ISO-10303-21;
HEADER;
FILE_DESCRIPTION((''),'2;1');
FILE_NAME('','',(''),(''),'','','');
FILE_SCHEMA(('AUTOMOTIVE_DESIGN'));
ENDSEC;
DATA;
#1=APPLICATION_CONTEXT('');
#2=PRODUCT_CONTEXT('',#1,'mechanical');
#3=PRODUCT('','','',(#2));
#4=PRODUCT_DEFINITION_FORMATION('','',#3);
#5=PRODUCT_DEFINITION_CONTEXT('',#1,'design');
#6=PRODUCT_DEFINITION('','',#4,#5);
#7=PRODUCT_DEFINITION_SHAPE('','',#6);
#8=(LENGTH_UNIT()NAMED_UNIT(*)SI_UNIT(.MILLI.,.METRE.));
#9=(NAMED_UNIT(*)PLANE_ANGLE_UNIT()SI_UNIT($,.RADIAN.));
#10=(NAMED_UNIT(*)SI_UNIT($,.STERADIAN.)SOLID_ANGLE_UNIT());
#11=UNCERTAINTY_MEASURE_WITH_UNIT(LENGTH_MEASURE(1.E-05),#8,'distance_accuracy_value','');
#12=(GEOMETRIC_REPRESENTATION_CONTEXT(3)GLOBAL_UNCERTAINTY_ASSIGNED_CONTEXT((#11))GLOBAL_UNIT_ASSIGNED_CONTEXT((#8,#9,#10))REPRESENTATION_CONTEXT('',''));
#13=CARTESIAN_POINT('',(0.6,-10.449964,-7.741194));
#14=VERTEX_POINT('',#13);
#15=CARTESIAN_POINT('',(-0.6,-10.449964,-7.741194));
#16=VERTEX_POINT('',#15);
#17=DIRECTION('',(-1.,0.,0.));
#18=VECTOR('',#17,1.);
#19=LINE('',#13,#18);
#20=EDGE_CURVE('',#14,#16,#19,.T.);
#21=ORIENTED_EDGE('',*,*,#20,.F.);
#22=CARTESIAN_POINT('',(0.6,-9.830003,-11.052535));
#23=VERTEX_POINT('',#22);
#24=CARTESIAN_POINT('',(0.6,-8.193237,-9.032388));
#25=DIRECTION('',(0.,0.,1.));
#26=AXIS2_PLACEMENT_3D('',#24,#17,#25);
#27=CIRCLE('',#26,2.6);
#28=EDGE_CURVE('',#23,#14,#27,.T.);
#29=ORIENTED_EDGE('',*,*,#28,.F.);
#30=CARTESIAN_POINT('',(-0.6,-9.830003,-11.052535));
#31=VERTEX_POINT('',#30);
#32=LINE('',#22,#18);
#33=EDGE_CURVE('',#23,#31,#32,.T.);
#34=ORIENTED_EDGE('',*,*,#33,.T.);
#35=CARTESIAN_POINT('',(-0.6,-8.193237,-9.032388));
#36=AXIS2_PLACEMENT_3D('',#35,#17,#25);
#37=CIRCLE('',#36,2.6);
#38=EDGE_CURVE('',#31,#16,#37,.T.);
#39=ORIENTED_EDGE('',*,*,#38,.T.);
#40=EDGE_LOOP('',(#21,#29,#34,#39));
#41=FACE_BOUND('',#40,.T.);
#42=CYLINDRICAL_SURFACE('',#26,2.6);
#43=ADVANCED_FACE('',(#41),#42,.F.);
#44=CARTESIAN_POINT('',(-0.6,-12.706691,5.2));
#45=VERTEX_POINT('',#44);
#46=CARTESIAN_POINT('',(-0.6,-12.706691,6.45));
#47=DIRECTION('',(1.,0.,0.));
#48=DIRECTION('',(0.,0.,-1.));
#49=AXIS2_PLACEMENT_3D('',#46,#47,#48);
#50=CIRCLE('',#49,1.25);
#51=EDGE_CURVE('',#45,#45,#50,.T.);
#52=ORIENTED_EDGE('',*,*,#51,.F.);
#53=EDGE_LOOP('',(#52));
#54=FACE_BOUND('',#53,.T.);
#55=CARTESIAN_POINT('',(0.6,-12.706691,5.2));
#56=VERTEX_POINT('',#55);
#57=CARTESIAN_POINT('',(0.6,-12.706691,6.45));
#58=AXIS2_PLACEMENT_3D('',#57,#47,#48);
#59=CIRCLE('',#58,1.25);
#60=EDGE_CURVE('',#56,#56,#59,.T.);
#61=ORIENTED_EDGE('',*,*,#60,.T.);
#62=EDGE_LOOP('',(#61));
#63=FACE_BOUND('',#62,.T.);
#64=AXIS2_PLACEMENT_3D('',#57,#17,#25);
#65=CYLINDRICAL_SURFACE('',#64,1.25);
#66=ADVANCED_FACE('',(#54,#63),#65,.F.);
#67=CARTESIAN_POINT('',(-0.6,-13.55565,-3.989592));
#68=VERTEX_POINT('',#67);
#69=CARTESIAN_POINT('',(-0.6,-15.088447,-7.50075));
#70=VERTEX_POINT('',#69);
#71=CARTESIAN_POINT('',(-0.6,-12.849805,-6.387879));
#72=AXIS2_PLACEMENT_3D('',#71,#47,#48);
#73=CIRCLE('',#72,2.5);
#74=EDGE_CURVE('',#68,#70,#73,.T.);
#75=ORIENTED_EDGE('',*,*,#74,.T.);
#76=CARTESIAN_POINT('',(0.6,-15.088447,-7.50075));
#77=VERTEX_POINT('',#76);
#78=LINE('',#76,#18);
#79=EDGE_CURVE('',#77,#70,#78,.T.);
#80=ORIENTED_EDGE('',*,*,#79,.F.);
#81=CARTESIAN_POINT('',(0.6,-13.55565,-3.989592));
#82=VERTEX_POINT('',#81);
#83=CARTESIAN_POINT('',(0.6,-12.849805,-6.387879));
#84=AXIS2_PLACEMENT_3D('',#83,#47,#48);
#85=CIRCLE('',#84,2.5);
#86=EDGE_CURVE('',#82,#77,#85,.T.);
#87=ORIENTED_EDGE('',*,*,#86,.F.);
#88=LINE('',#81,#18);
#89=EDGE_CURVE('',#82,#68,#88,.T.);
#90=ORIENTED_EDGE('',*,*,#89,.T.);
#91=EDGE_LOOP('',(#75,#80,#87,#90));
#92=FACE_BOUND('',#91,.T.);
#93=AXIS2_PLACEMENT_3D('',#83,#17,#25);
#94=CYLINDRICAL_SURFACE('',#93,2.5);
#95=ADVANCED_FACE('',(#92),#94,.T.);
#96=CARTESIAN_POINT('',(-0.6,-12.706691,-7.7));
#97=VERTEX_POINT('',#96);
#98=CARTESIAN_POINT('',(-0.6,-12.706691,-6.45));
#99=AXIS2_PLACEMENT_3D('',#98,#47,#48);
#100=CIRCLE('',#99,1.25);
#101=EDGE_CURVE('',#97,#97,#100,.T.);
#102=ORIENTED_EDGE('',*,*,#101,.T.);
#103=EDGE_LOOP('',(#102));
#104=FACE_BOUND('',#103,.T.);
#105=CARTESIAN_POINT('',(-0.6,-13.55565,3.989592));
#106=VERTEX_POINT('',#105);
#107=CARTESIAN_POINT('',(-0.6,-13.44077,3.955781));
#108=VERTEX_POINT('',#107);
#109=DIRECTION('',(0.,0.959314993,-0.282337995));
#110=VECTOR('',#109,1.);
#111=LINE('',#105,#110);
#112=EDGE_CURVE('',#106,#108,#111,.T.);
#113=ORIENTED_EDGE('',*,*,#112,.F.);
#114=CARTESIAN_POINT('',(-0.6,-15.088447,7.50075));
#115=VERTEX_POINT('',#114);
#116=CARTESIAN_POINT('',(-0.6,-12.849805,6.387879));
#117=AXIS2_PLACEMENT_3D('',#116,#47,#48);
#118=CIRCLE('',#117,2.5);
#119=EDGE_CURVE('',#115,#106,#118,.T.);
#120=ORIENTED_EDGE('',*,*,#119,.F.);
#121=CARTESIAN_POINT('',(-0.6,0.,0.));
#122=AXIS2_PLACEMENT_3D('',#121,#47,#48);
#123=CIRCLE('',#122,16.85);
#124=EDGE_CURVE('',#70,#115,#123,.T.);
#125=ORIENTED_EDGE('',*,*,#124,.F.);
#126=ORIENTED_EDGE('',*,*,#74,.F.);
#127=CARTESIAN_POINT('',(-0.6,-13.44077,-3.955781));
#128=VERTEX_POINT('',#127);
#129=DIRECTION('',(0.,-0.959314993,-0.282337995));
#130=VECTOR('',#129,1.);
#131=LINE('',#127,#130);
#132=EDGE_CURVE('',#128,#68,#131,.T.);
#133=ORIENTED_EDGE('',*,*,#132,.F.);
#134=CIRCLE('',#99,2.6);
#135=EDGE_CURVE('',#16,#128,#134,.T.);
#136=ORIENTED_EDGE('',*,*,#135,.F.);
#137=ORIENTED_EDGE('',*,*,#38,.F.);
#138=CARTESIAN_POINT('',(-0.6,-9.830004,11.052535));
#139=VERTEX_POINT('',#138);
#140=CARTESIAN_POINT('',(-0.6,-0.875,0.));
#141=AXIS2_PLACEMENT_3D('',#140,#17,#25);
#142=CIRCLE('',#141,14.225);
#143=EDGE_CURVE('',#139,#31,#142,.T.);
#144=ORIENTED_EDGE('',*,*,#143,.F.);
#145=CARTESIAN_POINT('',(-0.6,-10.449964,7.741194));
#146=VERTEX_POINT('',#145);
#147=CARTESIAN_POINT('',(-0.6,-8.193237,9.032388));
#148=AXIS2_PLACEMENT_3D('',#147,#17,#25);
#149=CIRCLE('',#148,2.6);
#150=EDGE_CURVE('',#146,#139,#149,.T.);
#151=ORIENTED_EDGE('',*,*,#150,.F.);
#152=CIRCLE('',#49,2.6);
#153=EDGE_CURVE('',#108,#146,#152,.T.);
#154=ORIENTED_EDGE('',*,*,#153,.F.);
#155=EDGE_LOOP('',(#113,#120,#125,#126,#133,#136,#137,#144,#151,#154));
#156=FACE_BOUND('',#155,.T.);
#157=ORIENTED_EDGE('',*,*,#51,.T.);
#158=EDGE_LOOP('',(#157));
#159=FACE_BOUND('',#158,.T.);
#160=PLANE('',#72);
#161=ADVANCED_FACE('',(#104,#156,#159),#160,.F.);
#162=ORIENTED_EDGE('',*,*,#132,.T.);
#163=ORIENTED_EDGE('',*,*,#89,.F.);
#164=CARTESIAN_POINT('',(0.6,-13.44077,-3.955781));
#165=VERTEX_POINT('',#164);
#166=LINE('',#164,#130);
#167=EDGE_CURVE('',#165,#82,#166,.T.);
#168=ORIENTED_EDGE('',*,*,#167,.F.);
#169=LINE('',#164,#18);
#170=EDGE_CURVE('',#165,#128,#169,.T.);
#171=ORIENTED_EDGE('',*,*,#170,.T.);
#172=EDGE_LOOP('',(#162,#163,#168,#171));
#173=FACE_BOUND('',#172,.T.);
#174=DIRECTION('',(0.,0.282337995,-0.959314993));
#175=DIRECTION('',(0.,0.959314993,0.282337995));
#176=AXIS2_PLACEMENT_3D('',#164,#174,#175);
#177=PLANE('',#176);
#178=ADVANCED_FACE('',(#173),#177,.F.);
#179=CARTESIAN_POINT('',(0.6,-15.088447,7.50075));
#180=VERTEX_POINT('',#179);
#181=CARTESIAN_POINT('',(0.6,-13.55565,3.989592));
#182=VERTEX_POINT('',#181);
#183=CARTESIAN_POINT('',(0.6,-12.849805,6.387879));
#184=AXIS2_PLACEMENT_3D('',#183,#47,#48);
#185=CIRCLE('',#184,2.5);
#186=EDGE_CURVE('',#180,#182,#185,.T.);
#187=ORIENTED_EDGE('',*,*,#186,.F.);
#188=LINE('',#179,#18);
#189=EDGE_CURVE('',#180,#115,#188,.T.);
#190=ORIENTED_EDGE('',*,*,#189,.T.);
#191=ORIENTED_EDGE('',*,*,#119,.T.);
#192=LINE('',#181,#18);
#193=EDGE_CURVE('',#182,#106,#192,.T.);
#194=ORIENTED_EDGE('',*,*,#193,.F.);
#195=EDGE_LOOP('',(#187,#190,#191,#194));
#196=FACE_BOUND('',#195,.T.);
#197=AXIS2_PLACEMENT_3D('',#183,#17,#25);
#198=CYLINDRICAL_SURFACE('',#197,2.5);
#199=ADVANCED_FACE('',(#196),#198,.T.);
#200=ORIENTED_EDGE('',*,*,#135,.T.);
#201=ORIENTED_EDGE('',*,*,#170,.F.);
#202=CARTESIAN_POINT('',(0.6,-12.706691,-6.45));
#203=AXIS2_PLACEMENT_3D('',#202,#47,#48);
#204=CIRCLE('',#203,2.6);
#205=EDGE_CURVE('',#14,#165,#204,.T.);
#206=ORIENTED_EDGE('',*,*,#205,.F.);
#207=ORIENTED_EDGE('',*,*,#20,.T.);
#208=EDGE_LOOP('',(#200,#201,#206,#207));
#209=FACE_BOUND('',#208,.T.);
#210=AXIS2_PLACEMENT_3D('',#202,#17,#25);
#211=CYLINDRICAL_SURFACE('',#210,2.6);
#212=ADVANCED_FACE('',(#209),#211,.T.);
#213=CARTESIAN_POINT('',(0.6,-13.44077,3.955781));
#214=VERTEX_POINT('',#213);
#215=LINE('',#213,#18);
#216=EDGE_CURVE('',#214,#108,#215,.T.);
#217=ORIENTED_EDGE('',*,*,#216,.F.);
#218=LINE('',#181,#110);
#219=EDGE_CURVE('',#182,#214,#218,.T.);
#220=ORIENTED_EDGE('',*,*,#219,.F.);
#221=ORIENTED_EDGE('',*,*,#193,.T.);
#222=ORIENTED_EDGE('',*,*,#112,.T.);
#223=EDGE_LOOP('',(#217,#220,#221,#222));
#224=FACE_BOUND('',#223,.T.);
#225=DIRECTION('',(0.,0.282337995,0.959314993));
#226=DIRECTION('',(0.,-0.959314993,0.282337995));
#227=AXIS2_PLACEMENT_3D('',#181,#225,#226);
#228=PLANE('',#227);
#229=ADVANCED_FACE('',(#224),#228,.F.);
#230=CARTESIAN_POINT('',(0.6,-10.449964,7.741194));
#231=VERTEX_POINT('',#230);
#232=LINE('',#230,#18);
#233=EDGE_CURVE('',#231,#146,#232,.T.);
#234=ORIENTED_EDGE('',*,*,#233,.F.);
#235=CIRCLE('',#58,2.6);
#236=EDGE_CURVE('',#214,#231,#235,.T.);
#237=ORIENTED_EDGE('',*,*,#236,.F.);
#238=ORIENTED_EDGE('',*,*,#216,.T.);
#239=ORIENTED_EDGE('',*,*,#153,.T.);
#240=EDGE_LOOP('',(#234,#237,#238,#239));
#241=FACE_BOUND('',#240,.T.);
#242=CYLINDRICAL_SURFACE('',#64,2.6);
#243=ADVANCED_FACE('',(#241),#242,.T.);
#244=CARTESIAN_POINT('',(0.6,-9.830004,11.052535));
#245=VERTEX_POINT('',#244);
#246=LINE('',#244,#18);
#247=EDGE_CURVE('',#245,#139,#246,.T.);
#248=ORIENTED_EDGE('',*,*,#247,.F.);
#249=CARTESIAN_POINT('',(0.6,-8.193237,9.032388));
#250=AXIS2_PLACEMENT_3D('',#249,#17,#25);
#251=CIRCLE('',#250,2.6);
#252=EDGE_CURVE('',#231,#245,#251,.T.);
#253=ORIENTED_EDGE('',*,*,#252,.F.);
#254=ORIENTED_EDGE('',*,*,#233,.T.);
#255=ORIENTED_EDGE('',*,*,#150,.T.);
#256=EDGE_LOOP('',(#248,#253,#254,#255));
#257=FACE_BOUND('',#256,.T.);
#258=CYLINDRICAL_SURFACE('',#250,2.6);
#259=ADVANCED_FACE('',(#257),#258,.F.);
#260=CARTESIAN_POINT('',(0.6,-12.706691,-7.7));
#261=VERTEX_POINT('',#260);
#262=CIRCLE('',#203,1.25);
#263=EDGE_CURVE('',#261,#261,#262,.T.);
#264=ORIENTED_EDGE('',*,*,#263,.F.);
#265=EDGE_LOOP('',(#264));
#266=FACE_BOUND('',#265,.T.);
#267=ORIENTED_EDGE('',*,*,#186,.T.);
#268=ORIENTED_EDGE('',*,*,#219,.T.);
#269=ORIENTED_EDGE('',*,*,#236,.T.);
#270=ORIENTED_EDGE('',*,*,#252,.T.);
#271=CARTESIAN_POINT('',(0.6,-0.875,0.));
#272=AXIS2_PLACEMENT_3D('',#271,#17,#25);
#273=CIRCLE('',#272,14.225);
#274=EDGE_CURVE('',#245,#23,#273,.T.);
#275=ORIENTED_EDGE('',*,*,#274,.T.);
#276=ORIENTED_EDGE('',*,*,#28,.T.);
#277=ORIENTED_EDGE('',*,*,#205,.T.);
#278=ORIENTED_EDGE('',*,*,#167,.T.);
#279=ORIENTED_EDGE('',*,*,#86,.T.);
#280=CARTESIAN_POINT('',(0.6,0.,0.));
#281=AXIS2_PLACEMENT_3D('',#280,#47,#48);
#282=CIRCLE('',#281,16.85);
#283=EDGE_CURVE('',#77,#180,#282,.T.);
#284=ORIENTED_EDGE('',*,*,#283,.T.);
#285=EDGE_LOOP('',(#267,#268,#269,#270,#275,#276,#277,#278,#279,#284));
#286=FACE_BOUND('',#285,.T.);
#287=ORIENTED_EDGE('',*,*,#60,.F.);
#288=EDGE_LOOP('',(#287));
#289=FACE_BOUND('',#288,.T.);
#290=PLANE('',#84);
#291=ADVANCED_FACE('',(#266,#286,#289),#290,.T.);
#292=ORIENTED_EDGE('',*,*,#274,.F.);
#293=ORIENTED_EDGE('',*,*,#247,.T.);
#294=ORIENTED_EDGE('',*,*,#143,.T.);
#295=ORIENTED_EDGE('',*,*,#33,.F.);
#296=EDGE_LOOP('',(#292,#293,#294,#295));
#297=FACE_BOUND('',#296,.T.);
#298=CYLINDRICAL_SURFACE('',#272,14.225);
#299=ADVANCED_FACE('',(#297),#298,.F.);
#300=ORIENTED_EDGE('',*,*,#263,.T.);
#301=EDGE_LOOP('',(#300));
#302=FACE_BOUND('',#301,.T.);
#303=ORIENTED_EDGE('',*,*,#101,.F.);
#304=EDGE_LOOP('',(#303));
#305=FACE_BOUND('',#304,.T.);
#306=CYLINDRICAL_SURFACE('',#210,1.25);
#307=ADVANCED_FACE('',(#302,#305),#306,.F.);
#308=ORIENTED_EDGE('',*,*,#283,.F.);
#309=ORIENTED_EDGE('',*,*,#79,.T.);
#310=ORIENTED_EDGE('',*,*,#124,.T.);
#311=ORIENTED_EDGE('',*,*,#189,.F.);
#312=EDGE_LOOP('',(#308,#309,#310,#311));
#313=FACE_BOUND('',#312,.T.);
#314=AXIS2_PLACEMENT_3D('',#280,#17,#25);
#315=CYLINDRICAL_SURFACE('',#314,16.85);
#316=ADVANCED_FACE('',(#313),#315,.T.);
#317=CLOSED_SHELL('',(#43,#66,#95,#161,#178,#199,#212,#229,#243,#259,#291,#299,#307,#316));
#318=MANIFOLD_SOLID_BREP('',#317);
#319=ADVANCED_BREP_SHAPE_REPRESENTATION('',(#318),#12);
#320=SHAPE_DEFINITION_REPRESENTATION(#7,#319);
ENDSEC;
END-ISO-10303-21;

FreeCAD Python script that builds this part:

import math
import FreeCAD as App
import Part
import Sketcher
from FreeCAD import Vector
Q = App.Units.Quantity

doc = App.newDocument("Part")
body = doc.addObject("PartDesign::Body", "Body")

# Sketch on YZ plane
sketch1 = body.newObject("Sketcher::SketchObject", "Sketch")
sketch1.AttachmentSupport = (doc.getObject("YZ_Plane"), [""])
sketch1.MapMode = "FlatFace"
sketch1.addGeometry([
    Part.LineSegment(Vector(-13.55565, 3.989592, 0), Vector(-13.44077, 3.955781, 0)),  # 0
    Part.ArcOfCircle(Part.Circle(Vector(-12.706691, 6.45, 0), Vector(0, 0, 1), 2.6), math.radians(-106.399793), math.radians(29.776179)),  # 1
    Part.ArcOfCircle(Part.Circle(Vector(-8.193237, 9.032388, 0), Vector(0, 0, 1), 2.6), math.radians(129.015141), math.radians(209.776176)),  # 2
    Part.ArcOfCircle(Part.Circle(Vector(-0.875, 0, 0), Vector(0, 0, 1), 14.225), math.radians(-129.01514), math.radians(129.015141)),  # 3
    Part.ArcOfCircle(Part.Circle(Vector(-8.193237, -9.032388, 0), Vector(0, 0, 1), 2.6), math.radians(150.223823), math.radians(230.984864)),  # 4
    Part.ArcOfCircle(Part.Circle(Vector(-12.706691, -6.45, 0), Vector(0, 0, 1), 2.6), math.radians(-29.776177), math.radians(106.399793)),  # 5
    Part.LineSegment(Vector(-13.44077, -3.955781, 0), Vector(-13.55565, -3.989592, 0)),  # 6
    Part.ArcOfCircle(Part.Circle(Vector(-12.849805, -6.387879, 0), Vector(0, 0, 1), 2.5), math.radians(106.399793), math.radians(206.432832)),  # 7
    Part.ArcOfCircle(Part.Circle(Vector(0, 0, 0), Vector(0, 0, 1), 16.85), math.radians(-153.567168), math.radians(153.567168)),  # 8
    Part.ArcOfCircle(Part.Circle(Vector(-12.849805, 6.387879, 0), Vector(0, 0, 1), 2.5), math.radians(153.567168), math.radians(253.600207)),  # 9
    Part.Circle(Vector(-12.706691, 6.45, 0), Vector(0, 0, 1), 1.25),  # 10
    Part.Circle(Vector(-12.706691, -6.45, 0), Vector(0, 0, 1), 1.25),  # 11
], False)
sketch1.addConstraint([
    Sketcher.Constraint("Tangent", 0, 2, 1, 1),
    Sketcher.Constraint("Tangent", 1, 2, 2, 2),
    Sketcher.Constraint("Tangent", 2, 1, 3, 2),
    Sketcher.Constraint("Tangent", 3, 1, 4, 2),
    Sketcher.Constraint("Tangent", 4, 1, 5, 1),
    Sketcher.Constraint("Tangent", 5, 2, 6, 1),
    Sketcher.Constraint("Tangent", 6, 2, 7, 1),
    Sketcher.Constraint("Tangent", 7, 2, 8, 1),
    Sketcher.Constraint("Tangent", 8, 2, 9, 1),
    Sketcher.Constraint("Tangent", 9, 2, 0, 1),
    Sketcher.Constraint("Coincident", 8, 3, -1, 1),
    Sketcher.Constraint("Coincident", 10, 3, 1, 3),
    Sketcher.Constraint("Coincident", 11, 3, 5, 3),
    Sketcher.Constraint("Equal", 1, 2),
    Sketcher.Constraint("Equal", 2, 4),
    Sketcher.Constraint("Equal", 4, 5),
    Sketcher.Constraint("Equal", 7, 9),
    Sketcher.Constraint("Equal", 10, 11),
    Sketcher.Constraint("Symmetric", 2, 3, 4, 3, -1),
    Sketcher.Constraint("Symmetric", 0, 2, 5, 2, -1),
    Sketcher.Constraint("Diameter", 10, Q("2.5 mm")),
    Sketcher.Constraint("Radius", 1, Q("2.6 mm")),
    Sketcher.Constraint("Radius", 7, Q("2.5 mm")),
    Sketcher.Constraint("Radius", 8, Q("16.85 mm")),
    Sketcher.Constraint("Radius", 3, Q("14.225 mm")),
    Sketcher.Constraint("DistanceY", 5, 3, 1, 3, Q("12.9 mm")),
    Sketcher.Constraint("DistanceX", 3, 3, -1, 1, Q("0.875 mm")),
    Sketcher.Constraint("DistanceY", 0, 2, 9, 3, Q("2.432098 mm")),
    Sketcher.Constraint("DistanceX", 9, 3, 2, 1, Q("3.019802 mm")),
])
pad1 = body.newObject("PartDesign::Pad", "Pad")
pad1.Profile = sketch1
pad1.Type = "TwoLengths"
pad1.Length = 0.6
pad1.Length2 = 0.6

doc.recompute()
